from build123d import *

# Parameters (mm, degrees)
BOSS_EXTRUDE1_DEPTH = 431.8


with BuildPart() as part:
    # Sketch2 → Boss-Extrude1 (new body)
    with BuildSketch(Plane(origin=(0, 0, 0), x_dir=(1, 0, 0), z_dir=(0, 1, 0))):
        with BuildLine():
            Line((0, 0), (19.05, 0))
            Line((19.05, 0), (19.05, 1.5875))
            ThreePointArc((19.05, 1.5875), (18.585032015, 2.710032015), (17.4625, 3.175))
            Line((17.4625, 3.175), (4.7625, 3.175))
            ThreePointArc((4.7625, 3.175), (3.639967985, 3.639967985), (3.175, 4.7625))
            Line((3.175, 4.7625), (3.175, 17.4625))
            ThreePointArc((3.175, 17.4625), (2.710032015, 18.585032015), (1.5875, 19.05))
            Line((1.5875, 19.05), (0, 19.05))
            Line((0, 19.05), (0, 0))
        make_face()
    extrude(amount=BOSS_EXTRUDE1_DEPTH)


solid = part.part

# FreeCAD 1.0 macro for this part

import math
import FreeCAD as App
import Part
import Sketcher
Q = App.Units.Quantity

doc = App.newDocument("Part")
body = doc.addObject("PartDesign::Body", "Body")

sketch1 = body.newObject("Sketcher::SketchObject", "Sketch")
sketch1.AttachmentSupport = (doc.getObject("XZ_Plane"), [""])
sketch1.MapMode = "FlatFace"
sketch1.addGeometry([
    Part.LineSegment(App.Vector(0, 0, 0), App.Vector(19.1, 0, 0)),
    Part.LineSegment(App.Vector(19.1, 0, 0), App.Vector(19.1, -1.6, 0)),
    Part.ArcOfCircle(Part.Circle(App.Vector(17.5, -1.6, 0), App.Vector(0, 0, 1), 1.6), math.radians(-90), math.radians(0)),
    Part.LineSegment(App.Vector(17.5, -3.2, 0), App.Vector(4.8, -3.2, 0)),
    Part.ArcOfCircle(Part.Circle(App.Vector(4.8, -4.8, 0), App.Vector(0, 0, 1), 1.6), math.radians(90), math.radians(180)),
    Part.LineSegment(App.Vector(3.2, -4.8, 0), App.Vector(3.2, -17.5, 0)),
    Part.ArcOfCircle(Part.Circle(App.Vector(1.6, -17.5, 0), App.Vector(0, 0, 1), 1.6), math.radians(-90), math.radians(0)),
    Part.LineSegment(App.Vector(1.6, -19.1, 0), App.Vector(0, -19.1, 0)),
    Part.LineSegment(App.Vector(0, -19.1, 0), App.Vector(0, 0, 0)),
], False)
sketch1.addConstraint([
    Sketcher.Constraint("Coincident", 0, 2, 1, 1),
    Sketcher.Constraint("Tangent", 1, 2, 2, 2),
    Sketcher.Constraint("Tangent", 2, 1, 3, 1),
    Sketcher.Constraint("Tangent", 3, 2, 4, 1),
    Sketcher.Constraint("Tangent", 4, 2, 5, 1),
    Sketcher.Constraint("Tangent", 5, 2, 6, 2),
    Sketcher.Constraint("Tangent", 6, 1, 7, 1),
    Sketcher.Constraint("Coincident", 7, 2, 8, 1),
    Sketcher.Constraint("Coincident", 8, 2, 0, 1),
    Sketcher.Constraint("Horizontal", 0),
    Sketcher.Constraint("Vertical", 1),
    Sketcher.Constraint("Horizontal", 3),
    Sketcher.Constraint("Vertical", 5),
    Sketcher.Constraint("Horizontal", 7),
    Sketcher.Constraint("Vertical", 8),
    Sketcher.Constraint("Coincident", 8, 2, -1, 1),
    Sketcher.Constraint("Equal", 2, 4),
    Sketcher.Constraint("Equal", 4, 6),
    Sketcher.Constraint("Equal", 7, 1),
    Sketcher.Constraint("Equal", 3, 5),
    Sketcher.Constraint("DistanceX", 3, 2, 3, 1, Q("0.5 in")),
    Sketcher.Constraint("Radius", 2, Q("0.0625 in")),
    Sketcher.Constraint("DistanceX", 0, 1, 0, 2, Q("0.75 in")),
])
pad1 = body.newObject("PartDesign::Pad", "Pad")
pad1.Profile = sketch1
pad1.Length = Q("17 in")
pad1.Reversed = True

doc.recompute()
